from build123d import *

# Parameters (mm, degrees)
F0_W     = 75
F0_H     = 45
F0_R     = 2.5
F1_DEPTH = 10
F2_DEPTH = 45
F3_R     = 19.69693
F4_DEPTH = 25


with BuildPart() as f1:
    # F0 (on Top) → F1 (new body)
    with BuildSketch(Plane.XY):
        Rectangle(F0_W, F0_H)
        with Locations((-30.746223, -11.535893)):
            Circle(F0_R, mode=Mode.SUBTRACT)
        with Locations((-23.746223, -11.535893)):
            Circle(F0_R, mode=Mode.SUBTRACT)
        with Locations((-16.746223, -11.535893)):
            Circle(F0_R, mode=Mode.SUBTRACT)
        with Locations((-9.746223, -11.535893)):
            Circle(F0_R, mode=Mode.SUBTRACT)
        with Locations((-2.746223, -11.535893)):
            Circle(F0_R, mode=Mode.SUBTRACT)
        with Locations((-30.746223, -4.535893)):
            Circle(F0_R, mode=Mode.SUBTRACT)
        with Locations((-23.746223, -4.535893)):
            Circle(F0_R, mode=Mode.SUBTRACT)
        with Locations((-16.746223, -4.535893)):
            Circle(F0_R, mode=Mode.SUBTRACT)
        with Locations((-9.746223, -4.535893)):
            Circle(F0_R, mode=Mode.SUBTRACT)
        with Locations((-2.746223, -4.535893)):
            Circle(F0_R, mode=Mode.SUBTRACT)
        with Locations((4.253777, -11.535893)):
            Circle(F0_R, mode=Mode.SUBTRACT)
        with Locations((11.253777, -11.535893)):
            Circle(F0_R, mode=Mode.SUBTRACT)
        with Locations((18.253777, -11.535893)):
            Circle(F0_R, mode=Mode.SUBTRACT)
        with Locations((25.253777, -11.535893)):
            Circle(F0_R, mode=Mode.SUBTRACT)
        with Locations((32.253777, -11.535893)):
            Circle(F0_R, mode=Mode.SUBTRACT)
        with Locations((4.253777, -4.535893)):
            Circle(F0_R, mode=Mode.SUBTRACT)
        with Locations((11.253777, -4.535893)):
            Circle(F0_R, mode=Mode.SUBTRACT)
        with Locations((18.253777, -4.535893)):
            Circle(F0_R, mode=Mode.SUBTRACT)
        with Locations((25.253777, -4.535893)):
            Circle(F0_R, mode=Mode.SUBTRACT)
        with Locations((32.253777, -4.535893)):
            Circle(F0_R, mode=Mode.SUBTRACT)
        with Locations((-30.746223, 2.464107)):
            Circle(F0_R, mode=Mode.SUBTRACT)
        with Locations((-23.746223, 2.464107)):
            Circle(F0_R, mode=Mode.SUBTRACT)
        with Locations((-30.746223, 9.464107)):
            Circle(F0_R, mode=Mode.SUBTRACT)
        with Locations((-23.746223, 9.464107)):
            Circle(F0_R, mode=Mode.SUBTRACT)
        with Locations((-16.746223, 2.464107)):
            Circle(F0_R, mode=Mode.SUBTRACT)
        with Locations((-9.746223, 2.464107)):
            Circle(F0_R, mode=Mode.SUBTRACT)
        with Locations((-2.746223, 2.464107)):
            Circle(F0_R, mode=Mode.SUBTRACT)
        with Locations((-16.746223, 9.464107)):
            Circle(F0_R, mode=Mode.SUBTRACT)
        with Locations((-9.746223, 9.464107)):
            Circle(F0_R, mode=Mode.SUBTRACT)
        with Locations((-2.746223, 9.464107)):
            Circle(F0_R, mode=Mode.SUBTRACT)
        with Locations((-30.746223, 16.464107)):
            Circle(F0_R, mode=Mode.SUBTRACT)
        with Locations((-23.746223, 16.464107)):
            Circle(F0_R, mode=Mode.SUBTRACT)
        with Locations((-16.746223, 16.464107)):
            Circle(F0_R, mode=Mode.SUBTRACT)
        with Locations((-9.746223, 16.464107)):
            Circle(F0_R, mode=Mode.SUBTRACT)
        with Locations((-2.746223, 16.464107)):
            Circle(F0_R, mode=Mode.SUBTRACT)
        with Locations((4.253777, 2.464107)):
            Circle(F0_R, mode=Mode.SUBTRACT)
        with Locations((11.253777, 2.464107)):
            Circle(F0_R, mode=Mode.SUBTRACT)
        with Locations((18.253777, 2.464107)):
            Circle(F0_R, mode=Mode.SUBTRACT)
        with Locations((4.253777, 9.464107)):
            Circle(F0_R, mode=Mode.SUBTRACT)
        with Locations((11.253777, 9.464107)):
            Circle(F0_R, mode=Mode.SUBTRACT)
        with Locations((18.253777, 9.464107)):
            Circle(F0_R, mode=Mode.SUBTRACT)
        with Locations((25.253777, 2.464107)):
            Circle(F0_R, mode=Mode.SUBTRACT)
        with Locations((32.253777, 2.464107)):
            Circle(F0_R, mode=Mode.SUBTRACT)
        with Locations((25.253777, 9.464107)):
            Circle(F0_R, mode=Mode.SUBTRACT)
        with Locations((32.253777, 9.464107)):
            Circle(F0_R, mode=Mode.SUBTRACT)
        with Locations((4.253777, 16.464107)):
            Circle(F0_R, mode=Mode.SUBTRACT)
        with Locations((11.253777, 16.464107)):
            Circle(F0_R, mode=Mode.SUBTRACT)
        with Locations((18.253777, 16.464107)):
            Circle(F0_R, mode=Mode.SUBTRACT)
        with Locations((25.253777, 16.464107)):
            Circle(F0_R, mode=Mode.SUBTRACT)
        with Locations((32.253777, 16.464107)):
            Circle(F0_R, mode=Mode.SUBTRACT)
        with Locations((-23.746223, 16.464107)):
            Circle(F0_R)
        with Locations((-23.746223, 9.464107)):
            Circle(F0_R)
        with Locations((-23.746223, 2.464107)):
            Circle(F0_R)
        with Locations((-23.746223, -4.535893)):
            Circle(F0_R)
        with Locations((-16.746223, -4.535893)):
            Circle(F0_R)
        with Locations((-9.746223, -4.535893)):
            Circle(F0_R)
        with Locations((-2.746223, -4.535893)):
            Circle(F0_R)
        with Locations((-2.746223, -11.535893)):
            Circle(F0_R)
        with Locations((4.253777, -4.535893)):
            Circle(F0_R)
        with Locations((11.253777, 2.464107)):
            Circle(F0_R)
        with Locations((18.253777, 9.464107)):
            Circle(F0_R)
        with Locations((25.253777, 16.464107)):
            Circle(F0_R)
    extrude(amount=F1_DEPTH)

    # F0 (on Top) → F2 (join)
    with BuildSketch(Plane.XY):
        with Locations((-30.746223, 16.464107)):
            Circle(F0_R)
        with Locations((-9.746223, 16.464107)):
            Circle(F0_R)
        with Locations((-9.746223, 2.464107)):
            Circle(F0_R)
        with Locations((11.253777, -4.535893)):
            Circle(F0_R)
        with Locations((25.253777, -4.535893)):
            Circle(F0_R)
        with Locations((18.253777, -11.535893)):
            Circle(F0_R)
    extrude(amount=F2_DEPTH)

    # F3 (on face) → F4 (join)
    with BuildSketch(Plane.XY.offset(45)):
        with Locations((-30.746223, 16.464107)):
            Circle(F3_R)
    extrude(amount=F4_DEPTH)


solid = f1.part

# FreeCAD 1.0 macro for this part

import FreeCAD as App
import Part
import Sketcher
Q = App.Units.Quantity


def add_polygon(sketch, points):
    """Adds a closed chain of lines whose ends are joined by coincident constraints."""
    first, n = sketch.GeometryCount, len(points)
    for a, b in zip(points, points[1:] + points[:1]):
        sketch.addGeometry(Part.LineSegment(App.Vector(*a, 0), App.Vector(*b, 0)), False)
    for i in range(n):
        sketch.addConstraint(Sketcher.Constraint("Coincident", first + i, 2, first + (i + 1) % n, 1))

doc = App.newDocument("Part")
body = doc.addObject("PartDesign::Body", "Body")

sketch1 = body.newObject("Sketcher::SketchObject", "Sketch")
sketch1.AttachmentSupport = (doc.getObject("XY_Plane"), [""])
sketch1.MapMode = "FlatFace"
add_polygon(sketch1, [(-37.5, 22.5), (-37.5, -22.5), (37.5, -22.5), (37.5, 22.5)])
sketch1.addGeometry(Part.Circle(App.Vector(-30.7, -11.5, 0), App.Vector(0, 0, 1), 2.5), False)
sketch1.addGeometry(Part.Circle(App.Vector(-23.7, -11.5, 0), App.Vector(0, 0, 1), 2.5), False)
sketch1.addGeometry(Part.Circle(App.Vector(-16.7, -11.5, 0), App.Vector(0, 0, 1), 2.5), False)
sketch1.addGeometry(Part.Circle(App.Vector(-9.7, -11.5, 0), App.Vector(0, 0, 1), 2.5), False)
sketch1.addGeometry(Part.Circle(App.Vector(-30.7, -4.5, 0), App.Vector(0, 0, 1), 2.5), False)
sketch1.addGeometry(Part.Circle(App.Vector(4.3, -11.5, 0), App.Vector(0, 0, 1), 2.5), False)
sketch1.addGeometry(Part.Circle(App.Vector(11.3, -11.5, 0), App.Vector(0, 0, 1), 2.5), False)
sketch1.addGeometry(Part.Circle(App.Vector(18.3, -11.5, 0), App.Vector(0, 0, 1), 2.5), False)
sketch1.addGeometry(Part.Circle(App.Vector(25.3, -11.5, 0), App.Vector(0, 0, 1), 2.5), False)
sketch1.addGeometry(Part.Circle(App.Vector(32.3, -11.5, 0), App.Vector(0, 0, 1), 2.5), False)
sketch1.addGeometry(Part.Circle(App.Vector(11.3, -4.5, 0), App.Vector(0, 0, 1), 2.5), False)
sketch1.addGeometry(Part.Circle(App.Vector(18.3, -4.5, 0), App.Vector(0, 0, 1), 2.5), False)
sketch1.addGeometry(Part.Circle(App.Vector(25.3, -4.5, 0), App.Vector(0, 0, 1), 2.5), False)
sketch1.addGeometry(Part.Circle(App.Vector(32.3, -4.5, 0), App.Vector(0, 0, 1), 2.5), False)
sketch1.addGeometry(Part.Circle(App.Vector(-30.7, 2.5, 0), App.Vector(0, 0, 1), 2.5), False)
sketch1.addGeometry(Part.Circle(App.Vector(-16.7, 2.5, 0), App.Vector(0, 0, 1), 2.5), False)
sketch1.addGeometry(Part.Circle(App.Vector(-30.7, 9.5, 0), App.Vector(0, 0, 1), 2.5), False)
sketch1.addGeometry(Part.Circle(App.Vector(-16.7, 9.5, 0), App.Vector(0, 0, 1), 2.5), False)
sketch1.addGeometry(Part.Circle(App.Vector(-9.7, 2.5, 0), App.Vector(0, 0, 1), 2.5), False)
sketch1.addGeometry(Part.Circle(App.Vector(-2.7, 2.5, 0), App.Vector(0, 0, 1), 2.5), False)
sketch1.addGeometry(Part.Circle(App.Vector(-9.7, 9.5, 0), App.Vector(0, 0, 1), 2.5), False)
sketch1.addGeometry(Part.Circle(App.Vector(-2.7, 9.5, 0), App.Vector(0, 0, 1), 2.5), False)
sketch1.addGeometry(Part.Circle(App.Vector(-30.7, 16.5, 0), App.Vector(0, 0, 1), 2.5), False)
sketch1.addGeometry(Part.Circle(App.Vector(-16.7, 16.5, 0), App.Vector(0, 0, 1), 2.5), False)
sketch1.addGeometry(Part.Circle(App.Vector(-9.7, 16.5, 0), App.Vector(0, 0, 1), 2.5), False)
sketch1.addGeometry(Part.Circle(App.Vector(-2.7, 16.5, 0), App.Vector(0, 0, 1), 2.5), False)
sketch1.addGeometry(Part.Circle(App.Vector(4.3, 2.5, 0), App.Vector(0, 0, 1), 2.5), False)
sketch1.addGeometry(Part.Circle(App.Vector(4.3, 9.5, 0), App.Vector(0, 0, 1), 2.5), False)
sketch1.addGeometry(Part.Circle(App.Vector(11.3, 9.5, 0), App.Vector(0, 0, 1), 2.5), False)
sketch1.addGeometry(Part.Circle(App.Vector(18.3, 2.5, 0), App.Vector(0, 0, 1), 2.5), False)
sketch1.addGeometry(Part.Circle(App.Vector(25.3, 2.5, 0), App.Vector(0, 0, 1), 2.5), False)
sketch1.addGeometry(Part.Circle(App.Vector(32.3, 2.5, 0), App.Vector(0, 0, 1), 2.5), False)
sketch1.addGeometry(Part.Circle(App.Vector(25.3, 9.5, 0), App.Vector(0, 0, 1), 2.5), False)
sketch1.addGeometry(Part.Circle(App.Vector(32.3, 9.5, 0), App.Vector(0, 0, 1), 2.5), False)
sketch1.addGeometry(Part.Circle(App.Vector(4.3, 16.5, 0), App.Vector(0, 0, 1), 2.5), False)
sketch1.addGeometry(Part.Circle(App.Vector(11.3, 16.5, 0), App.Vector(0, 0, 1), 2.5), False)
sketch1.addGeometry(Part.Circle(App.Vector(18.3, 16.5, 0), App.Vector(0, 0, 1), 2.5), False)
sketch1.addGeometry(Part.Circle(App.Vector(32.3, 16.5, 0), App.Vector(0, 0, 1), 2.5), False)
sketch1.addConstraint([
    Sketcher.Constraint("Vertical", 0),
    Sketcher.Constraint("Horizontal", 1),
    Sketcher.Constraint("Vertical", 2),
    Sketcher.Constraint("Horizontal", 3),
    Sketcher.Constraint("Equal", 4, 5),
    Sketcher.Constraint("Equal", 5, 6),
    Sketcher.Constraint("Equal", 6, 7),
    Sketcher.Constraint("Equal", 7, 8),
    Sketcher.Constraint("Equal", 8, 9),
    Sketcher.Constraint("Equal", 9, 10),
    Sketcher.Constraint("Equal", 10, 11),
    Sketcher.Constraint("Equal", 11, 12),
    Sketcher.Constraint("Equal", 12, 13),
    Sketcher.Constraint("Equal", 13, 14),
    Sketcher.Constraint("Equal", 14, 15),
    Sketcher.Constraint("Equal", 15, 16),
    Sketcher.Constraint("Equal", 16, 17),
    Sketcher.Constraint("Equal", 17, 18),
    Sketcher.Constraint("Equal", 18, 19),
    Sketcher.Constraint("Equal", 19, 20),
    Sketcher.Constraint("Equal", 20, 21),
    Sketcher.Constraint("Equal", 21, 22),
    Sketcher.Constraint("Equal", 22, 23),
    Sketcher.Constraint("Equal", 23, 24),
    Sketcher.Constraint("Equal", 24, 25),
    Sketcher.Constraint("Equal", 25, 26),
    Sketcher.Constraint("Equal", 26, 27),
    Sketcher.Constraint("Equal", 27, 28),
    Sketcher.Constraint("Equal", 28, 29),
    Sketcher.Constraint("Equal", 29, 30),
    Sketcher.Constraint("Equal", 30, 31),
    Sketcher.Constraint("Equal", 31, 32),
    Sketcher.Constraint("Equal", 32, 33),
    Sketcher.Constraint("Equal", 33, 34),
    Sketcher.Constraint("Equal", 34, 35),
    Sketcher.Constraint("Equal", 35, 36),
    Sketcher.Constraint("Equal", 36, 37),
    Sketcher.Constraint("Equal", 37, 38),
    Sketcher.Constraint("Equal", 38, 39),
    Sketcher.Constraint("Equal", 39, 40),
    Sketcher.Constraint("Equal", 40, 41),
    Sketcher.Constraint("Symmetric", 0, 2, 2, 2, -1, 1),
    Sketcher.Constraint("Horizontal", 4, 3, 5, 3),
    Sketcher.Constraint("Horizontal", 5, 3, 6, 3),
    Sketcher.Constraint("Horizontal", 6, 3, 7, 3),
    Sketcher.Constraint("Horizontal", 7, 3, 9, 3),
    Sketcher.Constraint("Horizontal", 9, 3, 10, 3),
    Sketcher.Constraint("Horizontal", 10, 3, 11, 3),
    Sketcher.Constraint("Horizontal", 11, 3, 12, 3),
    Sketcher.Constraint("Horizontal", 12, 3, 13, 3),
    Sketcher.Constraint("Horizontal", 8, 3, 14, 3),
    Sketcher.Constraint("Horizontal", 14, 3, 15, 3),
    Sketcher.Constraint("Horizontal", 15, 3, 16, 3),
    Sketcher.Constraint("Horizontal", 16, 3, 17, 3),
    Sketcher.Constraint("Horizontal", 18, 3, 19, 3),
    Sketcher.Constraint("Horizontal", 20, 3, 21, 3),
    Sketcher.Constraint("Horizontal", 19, 3, 22, 3),
    Sketcher.Constraint("Horizontal", 22, 3, 23, 3),
    Sketcher.Constraint("Horizontal", 21, 3, 24, 3),
    Sketcher.Constraint("Horizontal", 24, 3, 25, 3),
    Sketcher.Constraint("Horizontal", 26, 3, 27, 3),
    Sketcher.Constraint("Horizontal", 27, 3, 28, 3),
    Sketcher.Constraint("Horizontal", 28, 3, 29, 3),
    Sketcher.Constraint("Horizontal", 23, 3, 30, 3),
    Sketcher.Constraint("Horizontal", 25, 3, 31, 3),
    Sketcher.Constraint("Horizontal", 31, 3, 32, 3),
    Sketcher.Constraint("Horizontal", 30, 3, 33, 3),
    Sketcher.Constraint("Horizontal", 33, 3, 34, 3),
    Sketcher.Constraint("Horizontal", 34, 3, 35, 3),
    Sketcher.Constraint("Horizontal", 32, 3, 36, 3),
    Sketcher.Constraint("Horizontal", 36, 3, 37, 3),
    Sketcher.Constraint("Horizontal", 29, 3, 38, 3),
    Sketcher.Constraint("Horizontal", 38, 3, 39, 3),
    Sketcher.Constraint("Horizontal", 39, 3, 40, 3),
    Sketcher.Constraint("Horizontal", 40, 3, 41, 3),
    Sketcher.Constraint("Vertical", 4, 3, 8, 3),
    Sketcher.Constraint("Vertical", 10, 3, 14, 3),
    Sketcher.Constraint("Vertical", 11, 3, 15, 3),
    Sketcher.Constraint("Vertical", 12, 3, 16, 3),
    Sketcher.Constraint("Vertical", 13, 3, 17, 3),
    Sketcher.Constraint("Vertical", 8, 3, 18, 3),
    Sketcher.Constraint("Vertical", 6, 3, 19, 3),
    Sketcher.Constraint("Vertical", 18, 3, 20, 3),
    Sketcher.Constraint("Vertical", 19, 3, 21, 3),
    Sketcher.Constraint("Vertical", 7, 3, 22, 3),
    Sketcher.Constraint("Vertical", 22, 3, 24, 3),
    Sketcher.Constraint("Vertical", 23, 3, 25, 3),
    Sketcher.Constraint("Vertical", 20, 3, 26, 3),
    Sketcher.Constraint("Vertical", 21, 3, 27, 3),
    Sketcher.Constraint("Vertical", 24, 3, 28, 3),
    Sketcher.Constraint("Vertical", 25, 3, 29, 3),
    Sketcher.Constraint("Vertical", 9, 3, 30, 3),
    Sketcher.Constraint("Vertical", 30, 3, 31, 3),
    Sketcher.Constraint("Vertical", 14, 3, 32, 3),
    Sketcher.Constraint("Vertical", 15, 3, 33, 3),
    Sketcher.Constraint("Vertical", 16, 3, 34, 3),
    Sketcher.Constraint("Vertical", 17, 3, 35, 3),
    Sketcher.Constraint("Vertical", 34, 3, 36, 3),
    Sketcher.Constraint("Vertical", 35, 3, 37, 3),
    Sketcher.Constraint("Vertical", 31, 3, 38, 3),
    Sketcher.Constraint("Vertical", 32, 3, 39, 3),
    Sketcher.Constraint("Vertical", 33, 3, 40, 3),
    Sketcher.Constraint("Vertical", 37, 3, 41, 3),
    Sketcher.Constraint("Diameter", 4, Q("5 mm")),
    Sketcher.Constraint("DistanceX", 1, 1, 1, 2, Q("75 mm")),
    Sketcher.Constraint("DistanceY", 0, 2, 0, 1, Q("45 mm")),
    Sketcher.Constraint("DistanceX", 4, 3, 5, 3, Q("7 mm")),
    Sketcher.Constraint("DistanceX", 5, 3, 6, 3, Q("7 mm")),
    Sketcher.Constraint("DistanceX", 6, 3, 7, 3, Q("7 mm")),
    Sketcher.Constraint("DistanceY", 4, 3, 8, 3, Q("7 mm")),
    Sketcher.Constraint("DistanceX", 7, 3, 9, 3, Q("14 mm")),
    Sketcher.Constraint("DistanceX", 9, 3, 10, 3, Q("7 mm")),
    Sketcher.Constraint("DistanceX", 10, 3, 11, 3, Q("7 mm")),
    Sketcher.Constraint("DistanceX", 11, 3, 12, 3, Q("7 mm")),
    Sketcher.Constraint("DistanceX", 12, 3, 13, 3, Q("7 mm")),
    Sketcher.Constraint("DistanceY", 8, 3, 18, 3, Q("7 mm")),
    Sketcher.Constraint("DistanceY", 18, 3, 20, 3, Q("7 mm")),
    Sketcher.Constraint("DistanceX", 22, 3, 23, 3, Q("7 mm")),
    Sketcher.Constraint("DistanceY", 20, 3, 26, 3, Q("7 mm")),
    Sketcher.Constraint("DistanceX", 4, 3, -1, 1, Q("30.746223 mm")),
    Sketcher.Constraint("DistanceY", 4, 3, -1, 1, Q("11.535893 mm")),
])
pad1 = body.newObject("PartDesign::Pad", "Pad")
pad1.Profile = sketch1
pad1.Length = 10

sketch2 = body.newObject("Sketcher::SketchObject", "Sketch001")
sketch2.AttachmentSupport = (doc.getObject("XY_Plane"), [""])
sketch2.MapMode = "FlatFace"
sketch2.addGeometry([
    Part.Circle(App.Vector(-30.7, 16.5, 0), App.Vector(0, 0, 1), 2.5),
    Part.Circle(App.Vector(-9.7, 16.5, 0), App.Vector(0, 0, 1), 2.5),
    Part.Circle(App.Vector(-9.7, 2.5, 0), App.Vector(0, 0, 1), 2.5),
    Part.Circle(App.Vector(11.3, -4.5, 0), App.Vector(0, 0, 1), 2.5),
    Part.Circle(App.Vector(25.3, -4.5, 0), App.Vector(0, 0, 1), 2.5),
    Part.Circle(App.Vector(18.3, -11.5, 0), App.Vector(0, 0, 1), 2.5),
], False)
sketch2.addConstraint([
    Sketcher.Constraint("Equal", 0, 1),
    Sketcher.Constraint("Equal", 1, 2),
    Sketcher.Constraint("Equal", 2, 3),
    Sketcher.Constraint("Equal", 3, 4),
    Sketcher.Constraint("Equal", 4, 5),
    Sketcher.Constraint("Horizontal", 0, 3, 1, 3),
    Sketcher.Constraint("Horizontal", 3, 3, 4, 3),
    Sketcher.Constraint("Vertical", 1, 3, 2, 3),
    Sketcher.Constraint("Diameter", 0, Q("5 mm")),
    Sketcher.Constraint("DistanceX", 0, 3, 1, 3, Q("21 mm")),
    Sketcher.Constraint("DistanceY", 2, 3, 1, 3, Q("14 mm")),
    Sketcher.Constraint("DistanceX", 2, 3, 3, 3, Q("21 mm")),
    Sketcher.Constraint("DistanceY", 3, 3, 2, 3, Q("7 mm")),
    Sketcher.Constraint("DistanceX", 3, 3, 4, 3, Q("14 mm")),
    Sketcher.Constraint("DistanceX", 3, 3, 5, 3, Q("7 mm")),
    Sketcher.Constraint("DistanceY", 5, 3, 3, 3, Q("7 mm")),
    Sketcher.Constraint("DistanceX", 0, 3, -1, 1, Q("30.746223 mm")),
    Sketcher.Constraint("DistanceY", -1, 1, 0, 3, Q("16.464107 mm")),
])
pad2 = body.newObject("PartDesign::Pad", "Pad001")
pad2.Profile = sketch2
pad2.Length = 45

sketch3 = body.newObject("Sketcher::SketchObject", "Sketch002")
sketch3.AttachmentSupport = (doc.getObject("XY_Plane"), [""])
sketch3.MapMode = "FlatFace"
sketch3.AttachmentOffset = App.Placement(App.Vector(0, 0, 45), App.Rotation())
sketch3.addGeometry(Part.Circle(App.Vector(-31, 16, 0), App.Vector(0, 0, 1), 20), False)
sketch3.addConstraint([
    Sketcher.Constraint("Diameter", 0, Q("39.39386 mm")),
    Sketcher.Constraint("DistanceX", 0, 3, -1, 1, Q("30.746223 mm")),
    Sketcher.Constraint("DistanceY", -1, 1, 0, 3, Q("16.464107 mm")),
])
pad3 = body.newObject("PartDesign::Pad", "Pad002")
pad3.Profile = sketch3
pad3.Length = 25

doc.recompute()
